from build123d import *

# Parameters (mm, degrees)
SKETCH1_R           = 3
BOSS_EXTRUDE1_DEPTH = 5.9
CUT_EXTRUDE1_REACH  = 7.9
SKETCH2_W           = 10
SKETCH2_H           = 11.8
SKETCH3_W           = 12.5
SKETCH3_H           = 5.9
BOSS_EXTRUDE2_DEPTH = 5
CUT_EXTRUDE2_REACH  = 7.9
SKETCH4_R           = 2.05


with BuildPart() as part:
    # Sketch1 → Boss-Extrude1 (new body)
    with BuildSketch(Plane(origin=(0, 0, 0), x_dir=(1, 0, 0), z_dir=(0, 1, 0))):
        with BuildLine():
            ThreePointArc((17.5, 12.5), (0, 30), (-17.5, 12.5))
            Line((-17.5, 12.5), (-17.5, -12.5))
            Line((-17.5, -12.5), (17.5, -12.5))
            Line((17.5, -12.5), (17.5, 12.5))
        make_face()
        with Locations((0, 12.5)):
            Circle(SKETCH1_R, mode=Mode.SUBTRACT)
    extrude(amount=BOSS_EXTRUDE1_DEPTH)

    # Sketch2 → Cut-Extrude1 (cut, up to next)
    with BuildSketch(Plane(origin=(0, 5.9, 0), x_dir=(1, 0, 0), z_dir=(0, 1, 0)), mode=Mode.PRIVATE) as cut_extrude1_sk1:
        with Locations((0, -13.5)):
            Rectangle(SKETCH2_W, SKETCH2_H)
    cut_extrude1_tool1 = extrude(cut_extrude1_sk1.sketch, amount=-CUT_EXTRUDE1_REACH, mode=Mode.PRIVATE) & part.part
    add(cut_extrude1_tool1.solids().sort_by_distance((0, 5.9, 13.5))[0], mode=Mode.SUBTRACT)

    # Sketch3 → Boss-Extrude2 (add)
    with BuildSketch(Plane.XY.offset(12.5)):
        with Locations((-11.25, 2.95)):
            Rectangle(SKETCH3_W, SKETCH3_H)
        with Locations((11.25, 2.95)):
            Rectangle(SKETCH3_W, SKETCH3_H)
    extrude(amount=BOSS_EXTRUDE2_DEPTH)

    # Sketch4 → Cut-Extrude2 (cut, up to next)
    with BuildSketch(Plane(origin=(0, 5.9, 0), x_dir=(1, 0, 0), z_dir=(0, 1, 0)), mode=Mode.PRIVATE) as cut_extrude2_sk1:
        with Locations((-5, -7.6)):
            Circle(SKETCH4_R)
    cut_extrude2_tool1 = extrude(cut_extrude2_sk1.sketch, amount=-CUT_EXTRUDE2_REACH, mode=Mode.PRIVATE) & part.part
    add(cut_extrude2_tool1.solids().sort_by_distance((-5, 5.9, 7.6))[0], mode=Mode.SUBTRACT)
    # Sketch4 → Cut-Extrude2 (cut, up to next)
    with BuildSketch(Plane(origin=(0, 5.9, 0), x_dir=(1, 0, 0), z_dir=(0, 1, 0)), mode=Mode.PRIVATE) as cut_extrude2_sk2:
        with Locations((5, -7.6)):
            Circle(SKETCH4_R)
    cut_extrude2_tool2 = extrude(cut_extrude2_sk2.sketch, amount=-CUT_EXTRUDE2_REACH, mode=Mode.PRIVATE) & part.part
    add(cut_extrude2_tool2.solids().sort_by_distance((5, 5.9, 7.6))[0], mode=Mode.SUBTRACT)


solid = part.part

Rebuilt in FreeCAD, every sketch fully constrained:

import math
import FreeCAD as App
import Part
import Sketcher
from FreeCAD import Vector
Q = App.Units.Quantity

doc = App.newDocument("Part")
params = doc.addObject("Spreadsheet::Sheet", "Params")
for row, (alias, value) in enumerate([
    ("sketch1_diameter", "6 mm"),
    ("sketch1_radius", "17.5 mm"),
    ("sketch1_height", "25 mm"),
    ("pad1_length", "5.9 mm"),
    ("sketch2_width", "10 mm"),
    ("sketch2_height", "11.8 mm"),
    ("pocket1_length", "5.9 mm"),
    ("sketch3_width", "12.5 mm"),
    ("sketch3_height", "5.9 mm"),
    ("pad2_length", "5 mm"),
    ("sketch4_diameter", "4.1 mm"),
    ("sketch5_diameter", "4.1 mm"),
], start=1):
    params.set(f"A{row}", alias)
    params.set(f"B{row}", "=" + value)
    params.setAlias(f"B{row}", alias)

body = doc.addObject("PartDesign::Body", "Body")

# Sketch on XZ plane
sketch1 = doc.addObject("Sketcher::SketchObject", "Sketch")
body.addObject(sketch1)
sketch1.AttachmentSupport = (doc.XZ_Plane, [""])
sketch1.MapMode = "FlatFace"
sketch1.addGeometry([
    Part.ArcOfCircle(Part.Circle(Vector(0, -12.5, 0), Vector(0, 0, 1), 17.5), math.radians(180), math.radians(360)),  # 0
    Part.LineSegment(Vector(-17.5, -12.5, 0), Vector(-17.5, 12.5, 0)),  # 1
    Part.LineSegment(Vector(-17.5, 12.5, 0), Vector(17.5, 12.5, 0)),  # 2
    Part.LineSegment(Vector(17.5, 12.5, 0), Vector(17.5, -12.5, 0)),  # 3
    Part.Circle(Vector(0, -12.5, 0), Vector(0, 0, 1), 3),  # 4
], False)
sketch1.addConstraint([
    Sketcher.Constraint("Tangent", 0, 1, 1, 1),
    Sketcher.Constraint("Coincident", 1, 2, 2, 1),
    Sketcher.Constraint("Coincident", 2, 2, 3, 1),
    Sketcher.Constraint("Tangent", 3, 2, 0, 2),
    Sketcher.Constraint("Vertical", 1),
    Sketcher.Constraint("Horizontal", 2),
    Sketcher.Constraint("Vertical", 3),
    Sketcher.Constraint("Coincident", 4, 3, 0, 3),
    Sketcher.Constraint("Symmetric", 0, 1, 2, 2, -1, 1),
    Sketcher.Constraint("Diameter", 4, Q("6 mm")),
    Sketcher.Constraint("Radius", 0, Q("17.5 mm")),
    Sketcher.Constraint("DistanceY", 1, 1, 1, 2, Q("25 mm")),
])
sketch1.setExpression("Constraints[9]", "Params.sketch1_diameter")
sketch1.setExpression("Constraints[10]", "Params.sketch1_radius")
sketch1.setExpression("Constraints[11]", "Params.sketch1_height")
pad1 = doc.addObject("PartDesign::Pad", "Pad")
body.addObject(pad1)
pad1.Profile = sketch1
pad1.setExpression("Length", "Params.pad1_length")
pad1.Reversed = True

# Sketch on XZ plane
sketch2 = doc.addObject("Sketcher::SketchObject", "Sketch001")
body.addObject(sketch2)
sketch2.AttachmentSupport = (doc.XZ_Plane, [""])
sketch2.MapMode = "FlatFace"
sketch2.AttachmentOffset = App.Placement(Vector(0, 0, -5.9), App.Rotation())
sketch2.addGeometry([
    Part.LineSegment(Vector(-5, 8, 0), Vector(-5, 19, 0)),
    Part.LineSegment(Vector(-5, 19, 0), Vector(5, 19, 0)),
    Part.LineSegment(Vector(5, 19, 0), Vector(5, 8, 0)),
    Part.LineSegment(Vector(5, 8, 0), Vector(-5, 8, 0)),
], False)
sketch2.addConstraint([
    Sketcher.Constraint("Coincident", 0, 2, 1, 1),
    Sketcher.Constraint("Coincident", 1, 2, 2, 1),
    Sketcher.Constraint("Coincident", 2, 2, 3, 1),
    Sketcher.Constraint("Coincident", 3, 2, 0, 1),
    Sketcher.Constraint("Vertical", 0),
    Sketcher.Constraint("Horizontal", 1),
    Sketcher.Constraint("Vertical", 2),
    Sketcher.Constraint("Horizontal", 3),
    Sketcher.Constraint("DistanceX", 1, 1, 1, 2, Q("10 mm")),
    Sketcher.Constraint("DistanceY", 0, 1, 0, 2, Q("11.8 mm")),
    Sketcher.Constraint("DistanceX", 0, 2, -1, 1, Q("5 mm")),
    Sketcher.Constraint("DistanceY", -1, 1, 0, 2, Q("19.4 mm")),
])
sketch2.setExpression("Constraints[8]", "Params.sketch2_width")
sketch2.setExpression("Constraints[9]", "Params.sketch2_height")
pocket1 = doc.addObject("PartDesign::Pocket", "Pocket")
body.addObject(pocket1)
pocket1.Profile = sketch2
pocket1.setExpression("Length", "Params.pocket1_length")
pocket1.Reversed = True

# Sketch on XY plane
sketch3 = doc.addObject("Sketcher::SketchObject", "Sketch002")
body.addObject(sketch3)
sketch3.AttachmentSupport = (doc.XY_Plane, [""])
sketch3.MapMode = "FlatFace"
sketch3.AttachmentOffset = App.Placement(Vector(0, 0, 12.5), App.Rotation())
sketch3.addGeometry([
    Part.LineSegment(Vector(-18, 6, 0), Vector(-18, 0, 0)),  # 0
    Part.LineSegment(Vector(-18, 0, 0), Vector(-5, 0, 0)),  # 1
    Part.LineSegment(Vector(-5, 0, 0), Vector(-5, 6, 0)),  # 2
    Part.LineSegment(Vector(-5, 6, 0), Vector(-18, 6, 0)),  # 3
    Part.LineSegment(Vector(5, 6, 0), Vector(5, 0, 0)),  # 4
    Part.LineSegment(Vector(5, 0, 0), Vector(18, 0, 0)),  # 5
    Part.LineSegment(Vector(18, 0, 0), Vector(18, 6, 0)),  # 6
    Part.LineSegment(Vector(18, 6, 0), Vector(5, 6, 0)),  # 7
], False)
sketch3.addConstraint([
    Sketcher.Constraint("Coincident", 0, 2, 1, 1),
    Sketcher.Constraint("Coincident", 1, 2, 2, 1),
    Sketcher.Constraint("Coincident", 2, 2, 3, 1),
    Sketcher.Constraint("Coincident", 3, 2, 0, 1),
    Sketcher.Constraint("Coincident", 4, 2, 5, 1),
    Sketcher.Constraint("Coincident", 5, 2, 6, 1),
    Sketcher.Constraint("Coincident", 6, 2, 7, 1),
    Sketcher.Constraint("Coincident", 7, 2, 4, 1),
    Sketcher.Constraint("Vertical", 0),
    Sketcher.Constraint("Horizontal", 1),
    Sketcher.Constraint("Vertical", 2),
    Sketcher.Constraint("Horizontal", 3),
    Sketcher.Constraint("Vertical", 4),
    Sketcher.Constraint("Horizontal", 5),
    Sketcher.Constraint("Vertical", 6),
    Sketcher.Constraint("Horizontal", 7),
    Sketcher.Constraint("Symmetric", 1, 2, 4, 2, -1, 1),
    Sketcher.Constraint("Symmetric", 0, 2, 5, 2, -2),
    Sketcher.Constraint("Horizontal", 3, 2, 6, 2),
    Sketcher.Constraint("DistanceX", 1, 1, 1, 2, Q("12.5 mm")),
    Sketcher.Constraint("DistanceY", 0, 2, 0, 1, Q("5.9 mm")),
    Sketcher.Constraint("DistanceX", 1, 2, -1, 1, Q("5 mm")),
])
sketch3.setExpression("Constraints[19]", "Params.sketch3_width")
sketch3.setExpression("Constraints[20]", "Params.sketch3_height")
pad2 = doc.addObject("PartDesign::Pad", "Pad001")
body.addObject(pad2)
pad2.Profile = sketch3
pad2.setExpression("Length", "Params.pad2_length")

# Sketch on XZ plane
sketch4 = doc.addObject("Sketcher::SketchObject", "Sketch003")
body.addObject(sketch4)
sketch4.AttachmentSupport = (doc.XZ_Plane, [""])
sketch4.MapMode = "FlatFace"
sketch4.AttachmentOffset = App.Placement(Vector(0, 0, -5.9), App.Rotation())
sketch4.addGeometry(Part.Circle(Vector(-5, 7.6, 0), Vector(0, 0, 1), 2), False)
sketch4.addConstraint([
    Sketcher.Constraint("Diameter", 0, Q("4.1 mm")),
    Sketcher.Constraint("DistanceX", 0, 3, -1, 1, Q("5 mm")),
    Sketcher.Constraint("DistanceY", -1, 1, 0, 3, Q("7.6 mm")),
])
sketch4.setExpression("Constraints[0]", "Params.sketch4_diameter")
pocket2 = doc.addObject("PartDesign::Pocket", "Pocket001")
body.addObject(pocket2)
pocket2.Profile = sketch4
pocket2.Type = "UpToFirst"
pocket2.Reversed = True

# Sketch on XZ plane
sketch5 = doc.addObject("Sketcher::SketchObject", "Sketch004")
body.addObject(sketch5)
sketch5.AttachmentSupport = (doc.XZ_Plane, [""])
sketch5.MapMode = "FlatFace"
sketch5.AttachmentOffset = App.Placement(Vector(0, 0, -5.9), App.Rotation())
sketch5.addGeometry(Part.Circle(Vector(5, 7.6, 0), Vector(0, 0, 1), 2), False)
sketch5.addConstraint([
    Sketcher.Constraint("Diameter", 0, Q("4.1 mm")),
    Sketcher.Constraint("DistanceX", -1, 1, 0, 3, Q("5 mm")),
    Sketcher.Constraint("DistanceY", -1, 1, 0, 3, Q("7.6 mm")),
])
sketch5.setExpression("Constraints[0]", "Params.sketch5_diameter")
pocket3 = doc.addObject("PartDesign::Pocket", "Pocket002")
body.addObject(pocket3)
pocket3.Profile = sketch5
pocket3.Type = "UpToFirst"
pocket3.Reversed = True

doc.recompute()
